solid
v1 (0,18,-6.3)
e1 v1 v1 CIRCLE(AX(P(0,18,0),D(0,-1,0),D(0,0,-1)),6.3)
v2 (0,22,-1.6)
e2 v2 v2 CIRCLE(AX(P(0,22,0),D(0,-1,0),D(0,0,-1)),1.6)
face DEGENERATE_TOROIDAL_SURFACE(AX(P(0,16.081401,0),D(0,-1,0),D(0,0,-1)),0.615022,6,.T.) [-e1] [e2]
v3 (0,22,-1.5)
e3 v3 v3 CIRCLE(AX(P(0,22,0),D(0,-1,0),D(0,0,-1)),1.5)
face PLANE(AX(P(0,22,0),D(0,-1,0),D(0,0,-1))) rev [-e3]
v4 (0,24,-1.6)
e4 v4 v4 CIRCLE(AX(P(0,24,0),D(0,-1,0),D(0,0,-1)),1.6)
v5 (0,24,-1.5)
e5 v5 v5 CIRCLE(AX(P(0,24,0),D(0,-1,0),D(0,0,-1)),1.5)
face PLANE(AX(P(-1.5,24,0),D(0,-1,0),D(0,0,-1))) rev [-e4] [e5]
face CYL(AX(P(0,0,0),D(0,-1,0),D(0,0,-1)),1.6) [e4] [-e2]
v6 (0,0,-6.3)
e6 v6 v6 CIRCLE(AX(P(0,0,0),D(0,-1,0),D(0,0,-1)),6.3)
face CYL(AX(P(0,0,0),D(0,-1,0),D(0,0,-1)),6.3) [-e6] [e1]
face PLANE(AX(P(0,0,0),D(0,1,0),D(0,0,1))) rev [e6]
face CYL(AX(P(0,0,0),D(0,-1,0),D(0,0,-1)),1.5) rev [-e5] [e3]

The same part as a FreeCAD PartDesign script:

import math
import FreeCAD as App
import Part
import Sketcher

V = App.Vector
Q = App.Units.Quantity

doc = App.newDocument("Part")
body = doc.addObject("PartDesign::Body", "Body")

# Sketch on XY plane
sketch1 = body.newObject("Sketcher::SketchObject", "Sketch")
sketch1.AttachmentSupport = (doc.getObject("XY_Plane"), [""])
sketch1.MapMode = "FlatFace"
sketch1.addGeometry([
    Part.LineSegment(V(0, 0, 0), V(0, 22, 0)),  # 0
    Part.LineSegment(V(0, 22, 0), V(-1.5, 22, 0)),  # 1
    Part.LineSegment(V(-1.5, 22, 0), V(-1.5, 24, 0)),  # 2
    Part.LineSegment(V(-1.5, 24, 0), V(-1.6, 24, 0)),  # 3
    Part.LineSegment(V(-1.6, 24, 0), V(-1.6, 22, 0)),  # 4
    Part.ArcOfCircle(Part.Circle(V(-0.62, 16.08, 0), V(0, 0, 1), 6), math.radians(99), math.radians(161)),  # 5
    Part.LineSegment(V(-6.3, 18, 0), V(-6.3, 0, 0)),  # 6
    Part.LineSegment(V(-6.3, 0, 0), V(0, 0, 0)),  # 7
], False)
sketch1.addConstraint([
    Sketcher.Constraint("Coincident", 0, 2, 1, 1),
    Sketcher.Constraint("Coincident", 1, 2, 2, 1),
    Sketcher.Constraint("Coincident", 2, 2, 3, 1),
    Sketcher.Constraint("Coincident", 3, 2, 4, 1),
    Sketcher.Constraint("Coincident", 4, 2, 5, 1),
    Sketcher.Constraint("Coincident", 5, 2, 6, 1),
    Sketcher.Constraint("Coincident", 6, 2, 7, 1),
    Sketcher.Constraint("Coincident", 7, 2, 0, 1),
    Sketcher.Constraint("Vertical", 0),
    Sketcher.Constraint("Horizontal", 1),
    Sketcher.Constraint("Vertical", 2),
    Sketcher.Constraint("Horizontal", 3),
    Sketcher.Constraint("Vertical", 4),
    Sketcher.Constraint("Vertical", 6),
    Sketcher.Constraint("Horizontal", 7),
    Sketcher.Constraint("Coincident", 7, 2, -1, 1),
    Sketcher.Constraint("Horizontal", 1, 2, 4, 2),
    Sketcher.Constraint("Radius", 5, Q("6 mm")),
    Sketcher.Constraint("DistanceY", 0, 1, 0, 2, Q("22 mm")),
    Sketcher.Constraint("DistanceY", 2, 1, 2, 2, Q("2 mm")),
    Sketcher.Constraint("DistanceY", 6, 2, 6, 1, Q("18 mm")),
    Sketcher.Constraint("DistanceX", 1, 2, 1, 1, Q("1.5 mm")),
    Sketcher.Constraint("DistanceX", 3, 2, 3, 1, Q("0.1 mm")),
    Sketcher.Constraint("DistanceX", 7, 1, 7, 2, Q("6.3 mm")),
])
revolution = body.newObject("PartDesign::Revolution", "Revolution")
revolution.Profile = sketch1
revolution.ReferenceAxis = (sketch1, ["V_Axis"])
revolution.Angle = 360

doc.recompute()
